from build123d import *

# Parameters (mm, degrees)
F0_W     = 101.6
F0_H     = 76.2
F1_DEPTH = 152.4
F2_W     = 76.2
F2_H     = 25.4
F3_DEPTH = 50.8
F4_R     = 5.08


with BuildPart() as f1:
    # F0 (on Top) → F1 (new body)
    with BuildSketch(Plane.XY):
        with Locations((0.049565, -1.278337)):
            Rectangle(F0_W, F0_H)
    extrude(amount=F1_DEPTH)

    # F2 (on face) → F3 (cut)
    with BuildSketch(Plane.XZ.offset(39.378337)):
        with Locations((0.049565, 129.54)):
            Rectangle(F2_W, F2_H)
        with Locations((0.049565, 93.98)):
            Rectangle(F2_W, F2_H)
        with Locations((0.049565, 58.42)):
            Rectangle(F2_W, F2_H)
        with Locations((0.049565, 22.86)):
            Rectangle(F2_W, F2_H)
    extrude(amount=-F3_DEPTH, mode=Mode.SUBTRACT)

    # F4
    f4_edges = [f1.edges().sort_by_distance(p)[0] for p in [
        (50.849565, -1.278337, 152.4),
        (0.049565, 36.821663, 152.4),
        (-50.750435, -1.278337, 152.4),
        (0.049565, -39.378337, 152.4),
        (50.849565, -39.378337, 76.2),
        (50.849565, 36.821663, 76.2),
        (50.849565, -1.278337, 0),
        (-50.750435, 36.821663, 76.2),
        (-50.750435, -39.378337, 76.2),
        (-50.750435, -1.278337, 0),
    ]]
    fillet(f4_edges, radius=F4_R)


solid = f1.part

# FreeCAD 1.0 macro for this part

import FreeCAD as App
import Part
import Sketcher
from FreeCAD import Vector
Q = App.Units.Quantity


def edges_at(feature, points):
    """Names of the edges that pass closest to the given points."""
    edges = feature.Shape.Edges
    near = lambda p: min(range(len(edges)), key=lambda i: edges[i].distToShape(Part.Vertex(*p))[0])
    return sorted({f"Edge{near(p) + 1}" for p in points})

doc = App.newDocument("Part")
body = doc.addObject("PartDesign::Body", "Body")

sketch1 = doc.addObject("Sketcher::SketchObject", "Sketch")
body.addObject(sketch1)
sketch1.AttachmentSupport = (doc.XY_Plane, [""])
sketch1.MapMode = "FlatFace"
sketch1.addGeometry([
    Part.LineSegment(Vector(-51, 37, 0), Vector(-51, -39, 0)),
    Part.LineSegment(Vector(-51, -39, 0), Vector(51, -39, 0)),
    Part.LineSegment(Vector(51, -39, 0), Vector(51, 37, 0)),
    Part.LineSegment(Vector(51, 37, 0), Vector(-51, 37, 0)),
], False)
sketch1.addConstraint([
    Sketcher.Constraint("Coincident", 0, 2, 1, 1),
    Sketcher.Constraint("Coincident", 1, 2, 2, 1),
    Sketcher.Constraint("Coincident", 2, 2, 3, 1),
    Sketcher.Constraint("Coincident", 3, 2, 0, 1),
    Sketcher.Constraint("Vertical", 0),
    Sketcher.Constraint("Horizontal", 1),
    Sketcher.Constraint("Vertical", 2),
    Sketcher.Constraint("Horizontal", 3),
    Sketcher.Constraint("DistanceX", 1, 1, 1, 2, Q("4 in")),
    Sketcher.Constraint("DistanceY", 0, 2, 0, 1, Q("3 in")),
    Sketcher.Constraint("DistanceX", 0, 2, -1, 1, 50.750435),
    Sketcher.Constraint("DistanceY", 0, 2, -1, 1, 39.378337),
])
pad1 = doc.addObject("PartDesign::Pad", "Pad")
body.addObject(pad1)
pad1.Profile = sketch1
pad1.Length = Q("6 in")

sketch2 = doc.addObject("Sketcher::SketchObject", "Sketch001")
body.addObject(sketch2)
sketch2.AttachmentSupport = (doc.XZ_Plane, [""])
sketch2.MapMode = "FlatFace"
sketch2.AttachmentOffset = App.Placement(Vector(0, 0, 39.378337), App.Rotation())
sketch2.addGeometry([
    Part.LineSegment(Vector(-38, 142, 0), Vector(-38, 117, 0)),
    Part.LineSegment(Vector(-38, 117, 0), Vector(38, 117, 0)),
    Part.LineSegment(Vector(38, 117, 0), Vector(38, 142, 0)),
    Part.LineSegment(Vector(38, 142, 0), Vector(-38, 142, 0)),
    Part.LineSegment(Vector(-38, 107, 0), Vector(-38, 81, 0)),
    Part.LineSegment(Vector(-38, 81, 0), Vector(38, 81, 0)),
    Part.LineSegment(Vector(38, 81, 0), Vector(38, 107, 0)),
    Part.LineSegment(Vector(38, 107, 0), Vector(-38, 107, 0)),
    Part.LineSegment(Vector(-38, 71, 0), Vector(-38, 46, 0)),
    Part.LineSegment(Vector(-38, 46, 0), Vector(38, 46, 0)),
    Part.LineSegment(Vector(38, 46, 0), Vector(38, 71, 0)),
    Part.LineSegment(Vector(38, 71, 0), Vector(-38, 71, 0)),
    Part.LineSegment(Vector(-38, 36, 0), Vector(-38, 10, 0)),
    Part.LineSegment(Vector(-38, 10, 0), Vector(38, 10, 0)),
    Part.LineSegment(Vector(38, 10, 0), Vector(38, 36, 0)),
    Part.LineSegment(Vector(38, 36, 0), Vector(-38, 36, 0)),
], False)
sketch2.addConstraint([
    Sketcher.Constraint("Coincident", 0, 2, 1, 1),
    Sketcher.Constraint("Coincident", 1, 2, 2, 1),
    Sketcher.Constraint("Coincident", 2, 2, 3, 1),
    Sketcher.Constraint("Coincident", 3, 2, 0, 1),
    Sketcher.Constraint("Coincident", 4, 2, 5, 1),
    Sketcher.Constraint("Coincident", 5, 2, 6, 1),
    Sketcher.Constraint("Coincident", 6, 2, 7, 1),
    Sketcher.Constraint("Coincident", 7, 2, 4, 1),
    Sketcher.Constraint("Coincident", 8, 2, 9, 1),
    Sketcher.Constraint("Coincident", 9, 2, 10, 1),
    Sketcher.Constraint("Coincident", 10, 2, 11, 1),
    Sketcher.Constraint("Coincident", 11, 2, 8, 1),
    Sketcher.Constraint("Coincident", 12, 2, 13, 1),
    Sketcher.Constraint("Coincident", 13, 2, 14, 1),
    Sketcher.Constraint("Coincident", 14, 2, 15, 1),
    Sketcher.Constraint("Coincident", 15, 2, 12, 1),
    Sketcher.Constraint("Vertical", 0),
    Sketcher.Constraint("Horizontal", 1),
    Sketcher.Constraint("Vertical", 2),
    Sketcher.Constraint("Horizontal", 3),
    Sketcher.Constraint("Vertical", 4),
    Sketcher.Constraint("Horizontal", 5),
    Sketcher.Constraint("Vertical", 6),
    Sketcher.Constraint("Horizontal", 7),
    Sketcher.Constraint("Vertical", 8),
    Sketcher.Constraint("Horizontal", 9),
    Sketcher.Constraint("Vertical", 10),
    Sketcher.Constraint("Horizontal", 11),
    Sketcher.Constraint("Vertical", 12),
    Sketcher.Constraint("Horizontal", 13),
    Sketcher.Constraint("Vertical", 14),
    Sketcher.Constraint("Horizontal", 15),
    Sketcher.Constraint("Vertical", 3, 2, 4, 2),
    Sketcher.Constraint("Vertical", 2, 2, 5, 2),
    Sketcher.Constraint("Vertical", 7, 2, 8, 2),
    Sketcher.Constraint("Vertical", 6, 2, 9, 2),
    Sketcher.Constraint("Vertical", 11, 2, 12, 2),
    Sketcher.Constraint("Vertical", 10, 2, 13, 2),
    Sketcher.Constraint("Equal", 2, 4),
    Sketcher.Constraint("Equal", 6, 8),
    Sketcher.Constraint("Equal", 10, 12),
    Sketcher.Constraint("DistanceX", 1, 1, 1, 2, Q("3 in")),
    Sketcher.Constraint("DistanceY", 0, 2, 0, 1, Q("1 in")),
    Sketcher.Constraint("DistanceY", -1, 1, 0, 2, Q("4.6 in")),
    Sketcher.Constraint("DistanceY", -1, 1, 4, 2, Q("3.2 in")),
    Sketcher.Constraint("DistanceY", -1, 1, 8, 2, Q("1.8 in")),
    Sketcher.Constraint("DistanceY", -1, 1, 12, 2, Q("0.4 in")),
    Sketcher.Constraint("DistanceX", 0, 2, -1, 1, 38.050435),
])
pocket1 = doc.addObject("PartDesign::Pocket", "Pocket")
body.addObject(pocket1)
pocket1.Profile = sketch2
pocket1.Length = Q("2 in")
doc.recompute()

fillet = doc.addObject("PartDesign::Fillet", "Fillet")
body.addObject(fillet)
fillet.Base = (pocket1, edges_at(pocket1, [
    (50.85, -1.278, 152.4),
    (0.05, 36.822, 152.4),
    (-50.75, -1.278, 152.4),
    (0.05, -39.378, 152.4),
    (50.85, -39.378, 76.2),
    (50.85, 36.822, 76.2),
    (50.85, -1.278, 0),
    (-50.75, 36.822, 76.2),
    (-50.75, -39.378, 76.2),
    (-50.75, -1.278, 0),
]))
fillet.Radius = Q("0.2 in")

doc.recompute()
